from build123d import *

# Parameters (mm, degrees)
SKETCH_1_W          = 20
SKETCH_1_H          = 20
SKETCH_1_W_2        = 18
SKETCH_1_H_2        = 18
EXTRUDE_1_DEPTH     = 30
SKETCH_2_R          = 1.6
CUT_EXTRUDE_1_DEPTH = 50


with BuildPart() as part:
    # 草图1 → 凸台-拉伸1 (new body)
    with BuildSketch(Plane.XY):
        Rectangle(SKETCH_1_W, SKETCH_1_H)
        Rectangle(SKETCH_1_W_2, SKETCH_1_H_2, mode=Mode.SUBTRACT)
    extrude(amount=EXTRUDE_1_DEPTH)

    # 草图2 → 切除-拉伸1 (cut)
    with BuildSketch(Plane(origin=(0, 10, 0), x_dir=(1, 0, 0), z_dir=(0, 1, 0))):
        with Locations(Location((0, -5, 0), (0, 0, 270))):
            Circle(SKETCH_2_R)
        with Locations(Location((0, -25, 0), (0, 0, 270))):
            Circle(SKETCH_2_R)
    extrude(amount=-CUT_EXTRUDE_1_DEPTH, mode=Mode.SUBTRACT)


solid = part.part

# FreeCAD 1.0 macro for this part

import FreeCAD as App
import Part
import Sketcher
Q = App.Units.Quantity

doc = App.newDocument("Part")
body = doc.addObject("PartDesign::Body", "Body")

# Sketch on XY plane
sketch1 = body.newObject("Sketcher::SketchObject", "Sketch")
sketch1.AttachmentSupport = (doc.getObject("XY_Plane"), [""])
sketch1.MapMode = "FlatFace"
sketch1.addGeometry([
    Part.LineSegment(App.Vector(-10, 10, 0), App.Vector(-10, -10, 0)),  # 0
    Part.LineSegment(App.Vector(-10, -10, 0), App.Vector(10, -10, 0)),  # 1
    Part.LineSegment(App.Vector(10, -10, 0), App.Vector(10, 10, 0)),  # 2
    Part.LineSegment(App.Vector(10, 10, 0), App.Vector(-10, 10, 0)),  # 3
    Part.LineSegment(App.Vector(9, -9, 0), App.Vector(-9, -9, 0)),  # 4
    Part.LineSegment(App.Vector(-9, -9, 0), App.Vector(-9, 9, 0)),  # 5
    Part.LineSegment(App.Vector(-9, 9, 0), App.Vector(9, 9, 0)),  # 6
    Part.LineSegment(App.Vector(9, 9, 0), App.Vector(9, -9, 0)),  # 7
], False)
sketch1.addConstraint([
    Sketcher.Constraint("Coincident", 0, 2, 1, 1),
    Sketcher.Constraint("Coincident", 1, 2, 2, 1),
    Sketcher.Constraint("Coincident", 2, 2, 3, 1),
    Sketcher.Constraint("Coincident", 3, 2, 0, 1),
    Sketcher.Constraint("Coincident", 4, 2, 5, 1),
    Sketcher.Constraint("Coincident", 5, 2, 6, 1),
    Sketcher.Constraint("Coincident", 6, 2, 7, 1),
    Sketcher.Constraint("Coincident", 7, 2, 4, 1),
    Sketcher.Constraint("Vertical", 0),
    Sketcher.Constraint("Horizontal", 1),
    Sketcher.Constraint("Vertical", 2),
    Sketcher.Constraint("Horizontal", 3),
    Sketcher.Constraint("Horizontal", 4),
    Sketcher.Constraint("Vertical", 5),
    Sketcher.Constraint("Horizontal", 6),
    Sketcher.Constraint("Vertical", 7),
    Sketcher.Constraint("Symmetric", 0, 2, 2, 2, -1, 1),
    Sketcher.Constraint("Symmetric", 4, 2, 6, 2, -1, 1),
    Sketcher.Constraint("Equal", 3, 0),
    Sketcher.Constraint("Equal", 6, 5),
    Sketcher.Constraint("DistanceX", 1, 1, 1, 2, Q("20 mm")),
    Sketcher.Constraint("DistanceX", 4, 2, 4, 1, Q("18 mm")),
])
pad1 = body.newObject("PartDesign::Pad", "Pad")
pad1.Profile = sketch1
pad1.Length = 30

# Sketch on XZ plane
sketch2 = body.newObject("Sketcher::SketchObject", "Sketch001")
sketch2.AttachmentSupport = (doc.getObject("XZ_Plane"), [""])
sketch2.MapMode = "FlatFace"
sketch2.AttachmentOffset = App.Placement(App.Vector(0, 0, -10), App.Rotation())
sketch2.addGeometry([
    Part.Circle(App.Vector(0, 5, 0), App.Vector(0, 0, 1), 1.6),
    Part.Circle(App.Vector(0, 25, 0), App.Vector(0, 0, 1), 1.6),
], False)
sketch2.addConstraint([
    Sketcher.Constraint("Equal", 0, 1),
    Sketcher.Constraint("PointOnObject", 0, 3, -2),
    Sketcher.Constraint("PointOnObject", 1, 3, -2),
    Sketcher.Constraint("Diameter", 0, Q("3.2 mm")),
    Sketcher.Constraint("DistanceY", -1, 1, 0, 3, Q("5 mm")),
    Sketcher.Constraint("DistanceY", -1, 1, 1, 3, Q("25 mm")),
])
pocket1 = body.newObject("PartDesign::Pocket", "Pocket")
pocket1.Profile = sketch2
pocket1.Length = 50
pocket1.Reversed = True

doc.recompute()
